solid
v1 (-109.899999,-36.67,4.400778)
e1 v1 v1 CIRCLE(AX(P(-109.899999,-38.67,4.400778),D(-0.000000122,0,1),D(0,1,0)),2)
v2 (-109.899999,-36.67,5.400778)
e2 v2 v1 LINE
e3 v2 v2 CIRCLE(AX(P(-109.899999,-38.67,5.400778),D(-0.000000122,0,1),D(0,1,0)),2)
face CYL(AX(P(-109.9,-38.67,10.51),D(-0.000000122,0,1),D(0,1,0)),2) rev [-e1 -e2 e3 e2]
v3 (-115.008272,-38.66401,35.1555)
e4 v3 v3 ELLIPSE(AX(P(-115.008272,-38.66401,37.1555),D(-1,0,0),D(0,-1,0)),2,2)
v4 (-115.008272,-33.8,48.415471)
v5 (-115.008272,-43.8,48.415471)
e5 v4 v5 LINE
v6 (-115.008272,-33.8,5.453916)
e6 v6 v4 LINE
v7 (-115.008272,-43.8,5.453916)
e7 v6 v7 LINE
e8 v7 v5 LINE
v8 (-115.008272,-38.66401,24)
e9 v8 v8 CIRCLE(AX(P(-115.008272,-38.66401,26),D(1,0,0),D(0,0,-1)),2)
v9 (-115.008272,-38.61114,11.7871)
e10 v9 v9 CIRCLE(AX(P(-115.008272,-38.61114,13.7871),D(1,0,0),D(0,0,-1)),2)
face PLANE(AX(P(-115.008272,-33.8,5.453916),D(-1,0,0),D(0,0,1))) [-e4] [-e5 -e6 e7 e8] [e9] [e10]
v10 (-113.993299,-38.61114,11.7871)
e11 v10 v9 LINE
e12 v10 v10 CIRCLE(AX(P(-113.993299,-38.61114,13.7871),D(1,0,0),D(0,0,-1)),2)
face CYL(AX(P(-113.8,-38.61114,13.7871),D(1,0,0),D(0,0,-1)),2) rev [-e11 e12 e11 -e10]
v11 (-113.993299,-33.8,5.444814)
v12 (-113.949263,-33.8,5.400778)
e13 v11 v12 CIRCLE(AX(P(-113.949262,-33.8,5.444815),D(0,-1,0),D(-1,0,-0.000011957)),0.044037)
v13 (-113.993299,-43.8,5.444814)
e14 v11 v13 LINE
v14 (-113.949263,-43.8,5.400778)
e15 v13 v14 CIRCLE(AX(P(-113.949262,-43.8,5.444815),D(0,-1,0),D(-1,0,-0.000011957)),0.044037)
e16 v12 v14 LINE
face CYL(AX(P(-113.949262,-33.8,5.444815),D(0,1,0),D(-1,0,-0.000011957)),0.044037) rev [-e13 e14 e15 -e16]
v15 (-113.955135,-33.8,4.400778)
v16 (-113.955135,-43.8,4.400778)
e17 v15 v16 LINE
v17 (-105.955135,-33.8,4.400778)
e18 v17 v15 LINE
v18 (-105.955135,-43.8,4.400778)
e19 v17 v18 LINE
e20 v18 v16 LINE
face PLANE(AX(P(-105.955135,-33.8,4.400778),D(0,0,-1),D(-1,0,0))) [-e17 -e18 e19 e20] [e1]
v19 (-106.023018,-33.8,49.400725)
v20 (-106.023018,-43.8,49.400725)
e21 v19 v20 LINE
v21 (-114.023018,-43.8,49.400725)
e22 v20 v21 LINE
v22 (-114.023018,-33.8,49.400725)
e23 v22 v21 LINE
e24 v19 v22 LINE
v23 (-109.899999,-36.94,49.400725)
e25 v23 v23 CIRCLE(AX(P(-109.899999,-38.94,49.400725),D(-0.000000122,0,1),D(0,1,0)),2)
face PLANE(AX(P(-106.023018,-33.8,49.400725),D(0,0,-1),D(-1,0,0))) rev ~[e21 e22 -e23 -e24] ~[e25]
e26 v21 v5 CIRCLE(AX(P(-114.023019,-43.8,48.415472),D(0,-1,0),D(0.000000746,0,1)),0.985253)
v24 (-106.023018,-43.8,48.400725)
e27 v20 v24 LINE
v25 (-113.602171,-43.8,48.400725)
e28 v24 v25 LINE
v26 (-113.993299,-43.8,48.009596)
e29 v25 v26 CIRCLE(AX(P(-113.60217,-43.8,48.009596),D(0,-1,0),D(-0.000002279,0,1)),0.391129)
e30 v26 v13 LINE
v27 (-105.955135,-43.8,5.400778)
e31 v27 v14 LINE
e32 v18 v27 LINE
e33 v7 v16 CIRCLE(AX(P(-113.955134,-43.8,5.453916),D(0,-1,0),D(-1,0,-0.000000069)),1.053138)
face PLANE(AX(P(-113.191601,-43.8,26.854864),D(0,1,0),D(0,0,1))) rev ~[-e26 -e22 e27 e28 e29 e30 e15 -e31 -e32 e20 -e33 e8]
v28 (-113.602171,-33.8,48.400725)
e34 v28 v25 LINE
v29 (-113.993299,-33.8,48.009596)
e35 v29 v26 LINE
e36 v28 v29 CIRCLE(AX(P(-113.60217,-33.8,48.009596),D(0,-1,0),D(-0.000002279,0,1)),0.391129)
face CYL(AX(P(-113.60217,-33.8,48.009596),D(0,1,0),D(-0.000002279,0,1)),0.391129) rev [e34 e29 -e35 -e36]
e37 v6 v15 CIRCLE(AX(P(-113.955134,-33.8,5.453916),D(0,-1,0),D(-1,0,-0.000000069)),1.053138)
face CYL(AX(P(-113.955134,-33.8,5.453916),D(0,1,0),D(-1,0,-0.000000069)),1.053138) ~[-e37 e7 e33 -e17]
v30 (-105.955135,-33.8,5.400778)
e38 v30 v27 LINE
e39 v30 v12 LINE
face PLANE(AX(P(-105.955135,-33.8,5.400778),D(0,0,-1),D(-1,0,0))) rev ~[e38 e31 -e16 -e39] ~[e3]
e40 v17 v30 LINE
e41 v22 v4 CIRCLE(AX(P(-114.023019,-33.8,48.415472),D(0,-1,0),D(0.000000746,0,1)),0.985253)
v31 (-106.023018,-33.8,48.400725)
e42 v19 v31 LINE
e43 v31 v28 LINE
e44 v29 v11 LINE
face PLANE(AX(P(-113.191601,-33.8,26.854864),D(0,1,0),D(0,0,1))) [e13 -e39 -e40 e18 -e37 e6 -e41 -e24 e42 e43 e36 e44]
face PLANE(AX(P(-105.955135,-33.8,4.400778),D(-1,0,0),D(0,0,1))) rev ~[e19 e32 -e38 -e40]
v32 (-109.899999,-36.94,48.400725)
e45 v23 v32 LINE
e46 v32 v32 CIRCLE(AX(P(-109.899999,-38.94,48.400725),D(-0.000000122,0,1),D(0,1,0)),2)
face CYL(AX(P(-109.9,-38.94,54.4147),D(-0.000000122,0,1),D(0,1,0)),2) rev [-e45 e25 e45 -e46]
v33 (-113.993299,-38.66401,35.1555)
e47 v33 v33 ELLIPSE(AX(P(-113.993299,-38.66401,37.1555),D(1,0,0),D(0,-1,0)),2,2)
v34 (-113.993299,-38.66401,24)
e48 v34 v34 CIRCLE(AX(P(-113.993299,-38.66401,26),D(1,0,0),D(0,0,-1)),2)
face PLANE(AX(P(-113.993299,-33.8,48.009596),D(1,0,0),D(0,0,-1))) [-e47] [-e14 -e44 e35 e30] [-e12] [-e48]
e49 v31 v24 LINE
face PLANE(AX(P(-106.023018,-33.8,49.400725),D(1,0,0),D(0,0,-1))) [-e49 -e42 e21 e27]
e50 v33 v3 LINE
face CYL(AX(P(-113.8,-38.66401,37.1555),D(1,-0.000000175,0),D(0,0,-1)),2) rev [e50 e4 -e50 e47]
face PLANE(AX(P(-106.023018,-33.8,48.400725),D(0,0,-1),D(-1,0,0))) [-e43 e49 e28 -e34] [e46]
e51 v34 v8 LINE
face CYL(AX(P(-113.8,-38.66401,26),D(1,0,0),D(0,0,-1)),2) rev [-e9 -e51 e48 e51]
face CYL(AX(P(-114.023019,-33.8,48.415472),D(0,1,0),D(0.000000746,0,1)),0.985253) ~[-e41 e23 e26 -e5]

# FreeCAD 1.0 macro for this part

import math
import FreeCAD as App
import Part
import Sketcher
Q = App.Units.Quantity

doc = App.newDocument("Part")
body = doc.addObject("PartDesign::Body", "Body")

# Sketch on XY plane
sketch1 = doc.addObject("Sketcher::SketchObject", "Sketch")
body.addObject(sketch1)
sketch1.AttachmentSupport = (doc.XY_Plane, [""])
sketch1.MapMode = "FlatFace"
sketch1.addGeometry(Part.Circle(App.Vector(0, 0, 0), App.Vector(0, 0, 1), 2), False)
sketch1.addConstraint(Sketcher.Constraint("Coincident", 0, 3, -1, 1))
sketch1.addConstraint(Sketcher.Constraint("Diameter", 0, Q("4 mm")))
pad1 = doc.addObject("PartDesign::Pad", "Pad")
body.addObject(pad1)
pad1.Profile = sketch1
pad1.Length = 10
body2 = doc.addObject("PartDesign::Body", "Body001")
doc.recompute()

body.Placement = App.Placement(App.Vector(0, 0, 0), App.Rotation(App.Vector(0, 1, 0), 90))
boolean = doc.addObject("PartDesign::Boolean", "Boolean")
body2.addObject(boolean)
boolean.Type = "Fuse"
boolean.addObjects([body])
body3 = doc.addObject("PartDesign::Body", "Body002")
doc.recompute()

body2.Placement = App.Placement(App.Vector(15.49, 3.9, 4.87), App.Rotation(App.Vector(0, 0, 1), 0.000007))
boolean2 = doc.addObject("PartDesign::Boolean", "Boolean001")
body3.addObject(boolean2)
boolean2.Type = "Fuse"
boolean2.addObjects([body2])
body4 = doc.addObject("PartDesign::Body", "Body003")

# Sketch on XY plane
sketch2 = doc.addObject("Sketcher::SketchObject", "Sketch001")
body4.addObject(sketch2)
sketch2.AttachmentSupport = (doc.getObject("XY_Plane003"), [""])
sketch2.MapMode = "FlatFace"
sketch2.addGeometry(Part.Circle(App.Vector(0, 0, 0), App.Vector(0, 0, 1), 2), False)
sketch2.addConstraint(Sketcher.Constraint("Coincident", 0, 3, -1, 1))
sketch2.addConstraint(Sketcher.Constraint("Diameter", 0, Q("4 mm")))
pad2 = doc.addObject("PartDesign::Pad", "Pad001")
body4.addObject(pad2)
pad2.Profile = sketch2
pad2.Length = 10
body5 = doc.addObject("PartDesign::Body", "Body004")
doc.recompute()

body4.Placement = App.Placement(App.Vector(0, 0, 0), App.Rotation(App.Vector(0, 1, 0), 90))
boolean3 = doc.addObject("PartDesign::Boolean", "Boolean002")
body5.addObject(boolean3)
boolean3.Type = "Fuse"
boolean3.addObjects([body4])
body6 = doc.addObject("PartDesign::Body", "Body005")
doc.recompute()

body5.Placement = App.Placement(App.Vector(-28.4147, 3.9, 5.14), App.Rotation(App.Vector(0, 0, 1), 0.000007))
boolean4 = doc.addObject("PartDesign::Boolean", "Boolean003")
body6.addObject(boolean4)
boolean4.Type = "Fuse"
boolean4.addObjects([body5])
body7 = doc.addObject("PartDesign::Body", "Body006")

# Sketch on XY plane
sketch3 = doc.addObject("Sketcher::SketchObject", "Sketch002")
body7.addObject(sketch3)
sketch3.AttachmentSupport = (doc.getObject("XY_Plane006"), [""])
sketch3.MapMode = "FlatFace"
sketch3.addGeometry(Part.Circle(App.Vector(0, 0, 0), App.Vector(0, 0, 1), 2), False)
sketch3.addConstraint(Sketcher.Constraint("Coincident", 0, 3, -1, 1))
sketch3.addConstraint(Sketcher.Constraint("Diameter", 0, Q("4 mm")))
pad3 = doc.addObject("PartDesign::Pad", "Pad002")
body7.addObject(pad3)
pad3.Profile = sketch3
pad3.Length = 2
body8 = doc.addObject("PartDesign::Body", "Body007")
doc.recompute()

body7.Placement = App.Placement(App.Vector(0, 0, 0), App.Rotation(App.Vector(1, 0, 0), 271.492946))
boolean5 = doc.addObject("PartDesign::Boolean", "Boolean004")
body8.addObject(boolean5)
boolean5.Type = "Fuse"
boolean5.addObjects([body7])
body9 = doc.addObject("PartDesign::Body", "Body008")
doc.recompute()

body8.Placement = App.Placement(App.Vector(0, 0, 0), App.Rotation(App.Vector(0, 1, 0), 272.98249))
boolean6 = doc.addObject("PartDesign::Boolean", "Boolean005")
body9.addObject(boolean6)
boolean6.Type = "Fuse"
boolean6.addObjects([body8])
body10 = doc.addObject("PartDesign::Body", "Body009")
doc.recompute()

body9.Placement = App.Placement(App.Vector(-26, 5.29, 4.9), App.Rotation(App.Vector(0, 0, 1), 267.755985))
boolean7 = doc.addObject("PartDesign::Boolean", "Boolean006")
body10.addObject(boolean7)
boolean7.Type = "Fuse"
boolean7.addObjects([body9])
body11 = doc.addObject("PartDesign::Body", "Body010")

# Sketch on XY plane
sketch4 = doc.addObject("Sketcher::SketchObject", "Sketch003")
body11.addObject(sketch4)
sketch4.AttachmentSupport = (doc.getObject("XY_Plane010"), [""])
sketch4.MapMode = "FlatFace"
sketch4.addGeometry(Part.Circle(App.Vector(0, 0, 0), App.Vector(0, 0, 1), 2), False)
sketch4.addConstraint(Sketcher.Constraint("Coincident", 0, 3, -1, 1))
sketch4.addConstraint(Sketcher.Constraint("Diameter", 0, Q("4 mm")))
pad4 = doc.addObject("PartDesign::Pad", "Pad003")
body11.addObject(pad4)
pad4.Profile = sketch4
pad4.Length = 2
body12 = doc.addObject("PartDesign::Body", "Body011")
doc.recompute()

body11.Placement = App.Placement(App.Vector(-11.1555, 0, 4.86401), App.Rotation(App.Vector(1, 0, 0), 90.00001))
boolean8 = doc.addObject("PartDesign::Boolean", "Boolean007")
body12.addObject(boolean8)
boolean8.Type = "Fuse"
boolean8.addObjects([body11])
body13 = doc.addObject("PartDesign::Body", "Body012")

# Sketch on XY plane
sketch5 = doc.addObject("Sketcher::SketchObject", "Sketch004")
body13.addObject(sketch5)
sketch5.AttachmentSupport = (doc.getObject("XY_Plane012"), [""])
sketch5.MapMode = "FlatFace"
sketch5.addGeometry(Part.Circle(App.Vector(0, 0, 0), App.Vector(0, 0, 1), 2), False)
sketch5.addConstraint(Sketcher.Constraint("Coincident", 0, 3, -1, 1))
sketch5.addConstraint(Sketcher.Constraint("Diameter", 0, Q("4 mm")))
pad5 = doc.addObject("PartDesign::Pad", "Pad004")
body13.addObject(pad5)
pad5.Profile = sketch5
pad5.Length = 2
body14 = doc.addObject("PartDesign::Body", "Body013")
doc.recompute()

body13.Placement = App.Placement(App.Vector(0, 0, 0), App.Rotation(App.Vector(1, 0, 0), 90))
boolean9 = doc.addObject("PartDesign::Boolean", "Boolean008")
body14.addObject(boolean9)
boolean9.Type = "Fuse"
boolean9.addObjects([body13])
body15 = doc.addObject("PartDesign::Body", "Body014")
doc.recompute()

body14.Placement = App.Placement(App.Vector(0, 0, 4.86401), App.Rotation(App.Vector(0, 0, 1), 0))
boolean10 = doc.addObject("PartDesign::Boolean", "Boolean009")
body15.addObject(boolean10)
boolean10.Type = "Fuse"
boolean10.addObjects([body14])
body16 = doc.addObject("PartDesign::Body", "Body015")

# Sketch on XY plane
sketch6 = doc.addObject("Sketcher::SketchObject", "Sketch005")
body16.addObject(sketch6)
sketch6.AttachmentSupport = (doc.getObject("XY_Plane015"), [""])
sketch6.MapMode = "FlatFace"
sketch6.addGeometry(Part.Circle(App.Vector(0, 0, 0), App.Vector(0, 0, 1), 2), False)
sketch6.addConstraint(Sketcher.Constraint("Coincident", 0, 3, -1, 1))
sketch6.addConstraint(Sketcher.Constraint("Diameter", 0, Q("4 mm")))
pad6 = doc.addObject("PartDesign::Pad", "Pad005")
body16.addObject(pad6)
pad6.Profile = sketch6
pad6.Length = 2
body17 = doc.addObject("PartDesign::Body", "Body016")
doc.recompute()

body16.Placement = App.Placement(App.Vector(0, 0, 0), App.Rotation(App.Vector(1, 0, 0), 90))
boolean11 = doc.addObject("PartDesign::Boolean", "Boolean010")
body17.addObject(boolean11)
boolean11.Type = "Fuse"
boolean11.addObjects([body16])
body18 = doc.addObject("PartDesign::Body", "Body017")
doc.recompute()

body17.Placement = App.Placement(App.Vector(12.2129, 0, 4.81114), App.Rotation(App.Vector(0, 0, 1), 0))
boolean12 = doc.addObject("PartDesign::Boolean", "Boolean011")
body18.addObject(boolean12)
boolean12.Type = "Fuse"
boolean12.addObjects([body17])
body19 = doc.addObject("PartDesign::Body", "Body018")

# Sketch on XY plane
sketch7 = doc.addObject("Sketcher::SketchObject", "Sketch006")
body19.addObject(sketch7)
sketch7.AttachmentSupport = (doc.getObject("XY_Plane018"), [""])
sketch7.MapMode = "FlatFace"
sketch7.addGeometry(Part.Circle(App.Vector(0, 0, 0), App.Vector(0, 0, 1), 2), False)
sketch7.addConstraint(Sketcher.Constraint("Coincident", 0, 3, -1, 1))
sketch7.addConstraint(Sketcher.Constraint("Diameter", 0, Q("4 mm")))
pad7 = doc.addObject("PartDesign::Pad", "Pad006")
body19.addObject(pad7)
pad7.Profile = sketch7
pad7.Length = 2
body20 = doc.addObject("PartDesign::Body", "Body019")
doc.recompute()

body19.Placement = App.Placement(App.Vector(0, 0, 0), App.Rotation(App.Vector(1, 0, 0), 271.492946))
boolean13 = doc.addObject("PartDesign::Boolean", "Boolean012")
body20.addObject(boolean13)
boolean13.Type = "Fuse"
boolean13.addObjects([body19])
body21 = doc.addObject("PartDesign::Body", "Body020")
doc.recompute()

body20.Placement = App.Placement(App.Vector(0, 0, 0), App.Rotation(App.Vector(0, 1, 0), 272.98249))
boolean14 = doc.addObject("PartDesign::Boolean", "Boolean013")
body21.addObject(boolean14)
boolean14.Type = "Fuse"
boolean14.addObjects([body20])
body22 = doc.addObject("PartDesign::Body", "Body021")
doc.recompute()

body21.Placement = App.Placement(App.Vector(25, 5.38, 4.9), App.Rotation(App.Vector(0, 0, 1), 267.755985))
boolean15 = doc.addObject("PartDesign::Boolean", "Boolean014")
body22.addObject(boolean15)
boolean15.Type = "Fuse"
boolean15.addObjects([body21])
body23 = doc.addObject("PartDesign::Body", "Body022")

# Sketch on XY plane
sketch8 = doc.addObject("Sketcher::SketchObject", "Sketch007")
body23.addObject(sketch8)
sketch8.AttachmentSupport = (doc.getObject("XY_Plane022"), [""])
sketch8.MapMode = "FlatFace"
sketch8.addGeometry(Part.LineSegment(App.Vector(-22.415, -1.208, 0), App.Vector(20.546, -1.208, 0)), False)
sketch8.addGeometry(Part.ArcOfCircle(Part.Circle(App.Vector(20.546, -0.155, 0), App.Vector(0, 0, 1), 1.053), math.radians(-90), math.radians(0)), False)
sketch8.addGeometry(Part.LineSegment(App.Vector(21.599, -0.155, 0), App.Vector(21.599, 7.845, 0)), False)
sketch8.addGeometry(Part.LineSegment(App.Vector(21.599, 7.845, 0), App.Vector(20.599, 7.845, 0)), False)
sketch8.addGeometry(Part.LineSegment(App.Vector(20.599, 7.845, 0), App.Vector(20.599, -0.149, 0)), False)
sketch8.addGeometry(Part.ArcOfCircle(Part.Circle(App.Vector(20.555, -0.149, 0), App.Vector(0, 0, 1), 0.044), math.radians(-90), math.radians(0)), False)
sketch8.addGeometry(Part.LineSegment(App.Vector(20.555, -0.193, 0), App.Vector(-22.01, -0.193, 0)), False)
sketch8.addGeometry(Part.ArcOfCircle(Part.Circle(App.Vector(-22.01, 0.198, 0), App.Vector(0, 0, 1), 0.391), math.radians(-180), math.radians(-90)), False)
sketch8.addGeometry(Part.LineSegment(App.Vector(-22.401, 0.198, 0), App.Vector(-22.401, 7.777, 0)), False)
sketch8.addGeometry(Part.LineSegment(App.Vector(-22.401, 7.777, 0), App.Vector(-23.401, 7.777, 0)), False)
sketch8.addGeometry(Part.LineSegment(App.Vector(-23.401, 7.777, 0), App.Vector(-23.401, -0.223, 0)), False)
sketch8.addGeometry(Part.ArcOfCircle(Part.Circle(App.Vector(-22.415, -0.223, 0), App.Vector(0, 0, 1), 0.985), math.radians(180), math.radians(270)), False)
sketch8.addConstraint(Sketcher.Constraint("Tangent", 0, 2, 1, 1))
sketch8.addConstraint(Sketcher.Constraint("Tangent", 1, 2, 2, 1))
sketch8.addConstraint(Sketcher.Constraint("Coincident", 2, 2, 3, 1))
sketch8.addConstraint(Sketcher.Constraint("Coincident", 3, 2, 4, 1))
sketch8.addConstraint(Sketcher.Constraint("Coincident", 4, 2, 5, 2))
sketch8.addConstraint(Sketcher.Constraint("Coincident", 5, 1, 6, 1))
sketch8.addConstraint(Sketcher.Constraint("Tangent", 6, 2, 7, 2))
sketch8.addConstraint(Sketcher.Constraint("Coincident", 7, 1, 8, 1))
sketch8.addConstraint(Sketcher.Constraint("Coincident", 8, 2, 9, 1))
sketch8.addConstraint(Sketcher.Constraint("Coincident", 9, 2, 10, 1))
sketch8.addConstraint(Sketcher.Constraint("Tangent", 10, 2, 11, 1))
sketch8.addConstraint(Sketcher.Constraint("Tangent", 11, 2, 0, 1))
sketch8.addConstraint(Sketcher.Constraint("Horizontal", 0))
sketch8.addConstraint(Sketcher.Constraint("Vertical", 2))
sketch8.addConstraint(Sketcher.Constraint("Horizontal", 3))
sketch8.addConstraint(Sketcher.Constraint("Vertical", 4))
sketch8.addConstraint(Sketcher.Constraint("Horizontal", 6))
sketch8.addConstraint(Sketcher.Constraint("Vertical", 8))
sketch8.addConstraint(Sketcher.Constraint("Horizontal", 9))
sketch8.addConstraint(Sketcher.Constraint("Vertical", 10))
sketch8.addConstraint(Sketcher.Constraint("Horizontal", 5, 3, 4, 2))
sketch8.addConstraint(Sketcher.Constraint("Equal", 3, 9))
sketch8.addConstraint(Sketcher.Constraint("Equal", 2, 10))
sketch8.addConstraint(Sketcher.Constraint("DistanceX", 3, 2, 3, 1, Q("1 mm")))
sketch8.addConstraint(Sketcher.Constraint("DistanceY", 2, 1, 2, 2, Q("8 mm")))
sketch8.addConstraint(Sketcher.Constraint("Radius", 1, Q("1.053138 mm")))
sketch8.addConstraint(Sketcher.Constraint("Radius", 7, Q("0.391129 mm")))
sketch8.addConstraint(Sketcher.Constraint("Radius", 5, Q("0.044037 mm")))
sketch8.addConstraint(Sketcher.Constraint("Radius", 11, Q("0.985253 mm")))
sketch8.addConstraint(Sketcher.Constraint("DistanceX", 6, 2, 6, 1, Q("42.564782 mm")))
sketch8.addConstraint(Sketcher.Constraint("DistanceY", 4, 2, 4, 1, Q("7.994128 mm")))
sketch8.addConstraint(Sketcher.Constraint("DistanceY", 5, 1, -1, 1, Q("0.193299 mm")))
sketch8.addConstraint(Sketcher.Constraint("DistanceX", 0, 2, 5, 1, Q("0.009102 mm")))
sketch8.addConstraint(Sketcher.Constraint("DistanceY", 11, 2, 7, 1, Q("1.406101 mm")))
sketch8.addConstraint(Sketcher.Constraint("DistanceX", 11, 3, -1, 1, Q("22.415472 mm")))
pad8 = doc.addObject("PartDesign::Pad", "Pad007")
body23.addObject(pad8)
pad8.Profile = sketch8
pad8.Length = 10
doc.recompute()

boolean16 = doc.addObject("PartDesign::Boolean", "Boolean015")
body23.addObject(boolean16)
boolean16.Type = "Cut"
boolean16.addObjects([body22])
doc.recompute()

boolean17 = doc.addObject("PartDesign::Boolean", "Boolean016")
body23.addObject(boolean17)
boolean17.Type = "Cut"
boolean17.addObjects([body18])
doc.recompute()

boolean18 = doc.addObject("PartDesign::Boolean", "Boolean017")
body23.addObject(boolean18)
boolean18.Type = "Cut"
boolean18.addObjects([body15])
doc.recompute()

boolean19 = doc.addObject("PartDesign::Boolean", "Boolean018")
body23.addObject(boolean19)
boolean19.Type = "Cut"
boolean19.addObjects([body12])
doc.recompute()

boolean20 = doc.addObject("PartDesign::Boolean", "Boolean019")
body23.addObject(boolean20)
boolean20.Type = "Cut"
boolean20.addObjects([body10])
doc.recompute()

boolean21 = doc.addObject("PartDesign::Boolean", "Boolean020")
body23.addObject(boolean21)
boolean21.Type = "Cut"
boolean21.addObjects([body6])
doc.recompute()

boolean22 = doc.addObject("PartDesign::Boolean", "Boolean021")
body23.addObject(boolean22)
boolean22.Type = "Cut"
boolean22.addObjects([body3])
body24 = doc.addObject("PartDesign::Body", "Body023")
doc.recompute()

body23.Placement = App.Placement(App.Vector(0, 0, 0), App.Rotation(App.Vector(0, 1, 0), 90))
boolean23 = doc.addObject("PartDesign::Boolean", "Boolean022")
body24.addObject(boolean23)
boolean23.Type = "Fuse"
boolean23.addObjects([body23])
body25 = doc.addObject("PartDesign::Body", "Body024")
doc.recompute()

body24.Placement = App.Placement(App.Vector(-113.8, -33.8, 26), App.Rotation(App.Vector(0, 0, 1), 270))
boolean24 = doc.addObject("PartDesign::Boolean", "Boolean023")
body25.addObject(boolean24)
boolean24.Type = "Fuse"
boolean24.addObjects([body24])

doc.recompute()
